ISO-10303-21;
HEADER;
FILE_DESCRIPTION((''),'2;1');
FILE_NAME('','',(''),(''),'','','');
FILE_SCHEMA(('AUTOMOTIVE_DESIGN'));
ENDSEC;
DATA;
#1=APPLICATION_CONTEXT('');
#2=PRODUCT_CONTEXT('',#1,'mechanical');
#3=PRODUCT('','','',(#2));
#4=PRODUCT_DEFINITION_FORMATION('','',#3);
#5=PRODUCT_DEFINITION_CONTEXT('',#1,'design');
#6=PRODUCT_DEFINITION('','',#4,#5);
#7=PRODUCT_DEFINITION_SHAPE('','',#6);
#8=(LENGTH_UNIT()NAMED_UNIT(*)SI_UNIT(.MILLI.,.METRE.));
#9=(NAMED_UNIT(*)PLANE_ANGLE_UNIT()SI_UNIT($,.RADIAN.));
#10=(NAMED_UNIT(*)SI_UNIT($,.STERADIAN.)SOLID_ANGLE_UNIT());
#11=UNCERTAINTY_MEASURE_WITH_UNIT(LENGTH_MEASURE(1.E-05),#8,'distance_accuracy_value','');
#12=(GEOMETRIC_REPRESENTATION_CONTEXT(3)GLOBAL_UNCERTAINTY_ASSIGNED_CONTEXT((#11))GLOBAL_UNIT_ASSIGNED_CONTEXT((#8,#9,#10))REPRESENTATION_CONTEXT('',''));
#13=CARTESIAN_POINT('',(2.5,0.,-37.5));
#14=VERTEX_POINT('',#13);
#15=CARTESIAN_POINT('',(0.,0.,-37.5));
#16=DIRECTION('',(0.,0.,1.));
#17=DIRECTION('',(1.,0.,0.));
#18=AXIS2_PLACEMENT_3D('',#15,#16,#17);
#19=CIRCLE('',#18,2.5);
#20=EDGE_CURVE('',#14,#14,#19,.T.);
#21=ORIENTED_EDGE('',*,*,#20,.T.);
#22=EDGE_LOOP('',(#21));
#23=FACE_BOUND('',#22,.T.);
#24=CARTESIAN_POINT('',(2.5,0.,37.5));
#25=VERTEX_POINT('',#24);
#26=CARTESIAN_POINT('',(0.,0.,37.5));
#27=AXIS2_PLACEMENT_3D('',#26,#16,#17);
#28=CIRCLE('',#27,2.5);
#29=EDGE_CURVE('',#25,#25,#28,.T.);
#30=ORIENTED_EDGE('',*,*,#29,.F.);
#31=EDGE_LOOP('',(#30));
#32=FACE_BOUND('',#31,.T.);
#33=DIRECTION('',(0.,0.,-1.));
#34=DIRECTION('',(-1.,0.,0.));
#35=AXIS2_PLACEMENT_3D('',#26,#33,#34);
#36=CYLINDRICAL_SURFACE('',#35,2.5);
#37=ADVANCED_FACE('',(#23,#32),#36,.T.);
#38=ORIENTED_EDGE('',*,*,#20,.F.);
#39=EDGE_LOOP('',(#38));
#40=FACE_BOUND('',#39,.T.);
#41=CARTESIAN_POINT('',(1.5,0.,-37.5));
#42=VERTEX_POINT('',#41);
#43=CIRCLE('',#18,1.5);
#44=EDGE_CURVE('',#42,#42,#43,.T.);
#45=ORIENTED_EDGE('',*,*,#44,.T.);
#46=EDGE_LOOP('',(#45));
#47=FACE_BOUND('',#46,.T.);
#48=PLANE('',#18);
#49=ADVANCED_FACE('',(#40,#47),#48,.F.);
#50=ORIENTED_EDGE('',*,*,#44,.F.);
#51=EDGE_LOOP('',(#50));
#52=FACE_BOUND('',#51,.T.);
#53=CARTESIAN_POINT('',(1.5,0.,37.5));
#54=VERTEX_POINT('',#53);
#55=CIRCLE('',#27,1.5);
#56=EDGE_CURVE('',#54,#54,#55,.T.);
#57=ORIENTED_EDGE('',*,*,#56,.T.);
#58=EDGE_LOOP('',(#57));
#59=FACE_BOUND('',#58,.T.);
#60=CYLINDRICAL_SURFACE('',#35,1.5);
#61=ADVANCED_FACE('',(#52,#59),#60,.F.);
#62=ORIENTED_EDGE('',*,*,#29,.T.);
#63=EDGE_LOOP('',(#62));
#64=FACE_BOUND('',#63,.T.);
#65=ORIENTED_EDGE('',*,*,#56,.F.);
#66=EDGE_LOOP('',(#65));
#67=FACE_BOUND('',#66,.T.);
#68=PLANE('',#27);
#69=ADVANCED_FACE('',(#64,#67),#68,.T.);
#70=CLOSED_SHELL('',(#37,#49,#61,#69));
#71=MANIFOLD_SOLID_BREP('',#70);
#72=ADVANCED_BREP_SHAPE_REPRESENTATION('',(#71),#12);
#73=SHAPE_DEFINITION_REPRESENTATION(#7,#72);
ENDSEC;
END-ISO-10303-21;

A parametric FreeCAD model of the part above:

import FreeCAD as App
import Part
import Sketcher
from FreeCAD import Vector

doc = App.newDocument("Part")
body = doc.addObject("PartDesign::Body", "Body")

# Sketch on XY plane
sketch1 = body.newObject("Sketcher::SketchObject", "Sketch")
sketch1.AttachmentSupport = (doc.getObject("XY_Plane"), [""])
sketch1.MapMode = "FlatFace"
sketch1.addGeometry(Part.Circle(Vector(0, 0, 0), Vector(0, 0, 1), 2.5), False)
sketch1.addGeometry(Part.Circle(Vector(0, 0, 0), Vector(0, 0, 1), 1.5), False)
sketch1.addConstraint(Sketcher.Constraint("Coincident", 0, 3, -1, 1))
sketch1.addConstraint(Sketcher.Constraint("Coincident", 1, 3, -1, 1))
sketch1.addConstraint(Sketcher.Constraint("Diameter", 0, 5.0))
sketch1.addConstraint(Sketcher.Constraint("Diameter", 1, 3.0))
pad1 = body.newObject("PartDesign::Pad", "Pad")
pad1.Profile = sketch1
pad1.Length = 75
pad1.Midplane = True

doc.recompute()
